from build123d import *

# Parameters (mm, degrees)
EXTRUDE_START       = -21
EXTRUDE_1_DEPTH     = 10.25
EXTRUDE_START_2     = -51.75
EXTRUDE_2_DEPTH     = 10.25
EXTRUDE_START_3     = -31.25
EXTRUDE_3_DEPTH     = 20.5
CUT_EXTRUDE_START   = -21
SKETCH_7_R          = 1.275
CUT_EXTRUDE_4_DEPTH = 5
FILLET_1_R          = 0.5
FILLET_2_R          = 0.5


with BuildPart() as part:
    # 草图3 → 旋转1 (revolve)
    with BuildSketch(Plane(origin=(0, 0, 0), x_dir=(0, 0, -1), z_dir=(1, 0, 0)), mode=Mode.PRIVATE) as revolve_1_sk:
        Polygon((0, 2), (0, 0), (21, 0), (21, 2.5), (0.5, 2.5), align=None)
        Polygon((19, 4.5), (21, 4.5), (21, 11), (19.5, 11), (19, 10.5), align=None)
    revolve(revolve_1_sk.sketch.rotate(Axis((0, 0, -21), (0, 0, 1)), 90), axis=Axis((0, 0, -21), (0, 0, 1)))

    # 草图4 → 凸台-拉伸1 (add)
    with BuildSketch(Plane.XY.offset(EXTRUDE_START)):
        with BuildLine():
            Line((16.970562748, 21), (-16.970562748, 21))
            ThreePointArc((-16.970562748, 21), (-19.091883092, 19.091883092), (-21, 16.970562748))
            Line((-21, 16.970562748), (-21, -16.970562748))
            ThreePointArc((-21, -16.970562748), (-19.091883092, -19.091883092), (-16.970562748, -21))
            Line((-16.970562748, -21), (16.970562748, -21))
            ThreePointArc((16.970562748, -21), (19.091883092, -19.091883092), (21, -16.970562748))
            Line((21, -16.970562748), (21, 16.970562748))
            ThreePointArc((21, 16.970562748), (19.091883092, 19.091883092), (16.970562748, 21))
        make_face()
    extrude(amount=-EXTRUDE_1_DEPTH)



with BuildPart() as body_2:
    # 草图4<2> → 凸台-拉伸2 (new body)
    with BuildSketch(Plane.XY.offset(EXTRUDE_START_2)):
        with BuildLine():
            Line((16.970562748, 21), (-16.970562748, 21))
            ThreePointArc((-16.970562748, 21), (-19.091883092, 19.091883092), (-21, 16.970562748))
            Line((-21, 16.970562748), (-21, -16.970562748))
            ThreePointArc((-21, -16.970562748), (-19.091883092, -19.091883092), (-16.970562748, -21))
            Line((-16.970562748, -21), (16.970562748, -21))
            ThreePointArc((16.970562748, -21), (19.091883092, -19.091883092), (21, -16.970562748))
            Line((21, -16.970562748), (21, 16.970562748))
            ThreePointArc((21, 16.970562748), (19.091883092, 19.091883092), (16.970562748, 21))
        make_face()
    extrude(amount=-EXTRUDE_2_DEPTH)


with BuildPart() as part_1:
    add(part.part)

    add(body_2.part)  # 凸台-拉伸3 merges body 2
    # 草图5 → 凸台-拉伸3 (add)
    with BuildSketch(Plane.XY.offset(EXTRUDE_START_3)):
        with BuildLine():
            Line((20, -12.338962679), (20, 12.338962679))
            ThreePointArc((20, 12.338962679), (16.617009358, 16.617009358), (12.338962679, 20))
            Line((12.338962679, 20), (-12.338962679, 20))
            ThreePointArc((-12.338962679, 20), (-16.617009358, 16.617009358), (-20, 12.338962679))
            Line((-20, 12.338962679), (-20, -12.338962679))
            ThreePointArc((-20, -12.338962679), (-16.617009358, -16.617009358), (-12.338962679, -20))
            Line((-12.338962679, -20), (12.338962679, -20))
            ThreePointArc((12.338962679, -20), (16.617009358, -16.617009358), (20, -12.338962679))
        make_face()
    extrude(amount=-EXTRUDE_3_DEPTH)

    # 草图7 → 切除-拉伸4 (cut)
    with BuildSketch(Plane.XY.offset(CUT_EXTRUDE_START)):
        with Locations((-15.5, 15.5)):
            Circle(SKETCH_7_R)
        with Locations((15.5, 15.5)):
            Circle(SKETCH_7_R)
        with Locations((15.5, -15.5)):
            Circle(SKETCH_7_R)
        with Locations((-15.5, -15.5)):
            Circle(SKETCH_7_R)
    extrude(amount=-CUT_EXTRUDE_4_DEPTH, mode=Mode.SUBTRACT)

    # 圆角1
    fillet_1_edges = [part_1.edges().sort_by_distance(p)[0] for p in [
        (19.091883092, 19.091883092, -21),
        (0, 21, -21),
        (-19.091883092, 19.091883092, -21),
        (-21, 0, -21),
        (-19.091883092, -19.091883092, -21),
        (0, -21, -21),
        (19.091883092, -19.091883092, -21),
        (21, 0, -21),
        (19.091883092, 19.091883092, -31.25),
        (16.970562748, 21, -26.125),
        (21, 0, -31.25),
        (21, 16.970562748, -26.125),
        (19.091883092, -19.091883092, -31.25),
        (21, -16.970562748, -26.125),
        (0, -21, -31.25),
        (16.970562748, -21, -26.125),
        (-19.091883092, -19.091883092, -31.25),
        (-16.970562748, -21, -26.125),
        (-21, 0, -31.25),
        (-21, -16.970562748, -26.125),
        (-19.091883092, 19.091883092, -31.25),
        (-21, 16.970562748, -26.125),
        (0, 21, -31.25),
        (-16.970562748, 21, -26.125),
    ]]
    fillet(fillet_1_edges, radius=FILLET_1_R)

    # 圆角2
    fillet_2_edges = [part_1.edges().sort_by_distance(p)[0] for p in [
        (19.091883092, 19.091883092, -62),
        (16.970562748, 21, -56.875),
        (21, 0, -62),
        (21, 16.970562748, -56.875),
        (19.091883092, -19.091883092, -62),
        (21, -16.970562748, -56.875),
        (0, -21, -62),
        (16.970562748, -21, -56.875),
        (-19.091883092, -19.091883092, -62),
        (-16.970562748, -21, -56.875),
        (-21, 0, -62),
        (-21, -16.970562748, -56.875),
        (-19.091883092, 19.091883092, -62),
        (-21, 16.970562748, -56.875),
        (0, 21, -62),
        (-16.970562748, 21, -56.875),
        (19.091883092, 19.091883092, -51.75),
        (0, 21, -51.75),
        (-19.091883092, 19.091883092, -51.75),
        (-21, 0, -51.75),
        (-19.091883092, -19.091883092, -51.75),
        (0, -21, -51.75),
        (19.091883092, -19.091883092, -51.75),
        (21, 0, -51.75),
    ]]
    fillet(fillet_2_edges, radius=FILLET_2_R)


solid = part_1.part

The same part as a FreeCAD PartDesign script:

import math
import FreeCAD as App
import Part
import Sketcher
from FreeCAD import Vector
Q = App.Units.Quantity


def edges_at(feature, points):
    """Names of the edges that pass closest to the given points."""
    edges = feature.Shape.Edges
    near = lambda p: min(range(len(edges)), key=lambda i: edges[i].distToShape(Part.Vertex(*p))[0])
    return sorted({f"Edge{near(p) + 1}" for p in points})

doc = App.newDocument("Part")
params = doc.addObject("Spreadsheet::Sheet", "Params")
for row, (alias, value) in enumerate([
    ("sketch1_width", "2 mm"),
    ("sketch1_width2", "6 mm"),
    ("sketch1_height", "21 mm"),
    ("sketch1_width3", "2.5 mm"),
    ("revolution_angle", "360 deg"),
    ("sketch2_radius", "27 mm"),
    ("pad1_length", "10.25 mm"),
    ("sketch3_radius", "27 mm"),
    ("pad2_length", "10.25 mm"),
    ("sketch4_radius", "23.5 mm"),
    ("pad3_length", "20.5 mm"),
    ("sketch5_diameter", "2.55 mm"),
    ("pocket1_length", "5 mm"),
    ("fillet_radius", "0.5 mm"),
    ("fillet2_radius", "0.5 mm"),
], start=1):
    params.set(f"A{row}", alias)
    params.set(f"B{row}", "=" + value)
    params.setAlias(f"B{row}", alias)

body = doc.addObject("PartDesign::Body", "Body")
body.AllowCompound = True

sketch1 = doc.addObject("Sketcher::SketchObject", "Sketch")
body.addObject(sketch1)
sketch1.AttachmentSupport = (doc.YZ_Plane, [""])
sketch1.MapMode = "FlatFace"
sketch1.addGeometry([
    Part.LineSegment(Vector(2, 0, 0), Vector(0, 0, 0)),
    Part.LineSegment(Vector(0, 0, 0), Vector(0, -21, 0)),
    Part.LineSegment(Vector(0, -21, 0), Vector(2.5, -21, 0)),
    Part.LineSegment(Vector(2.5, -21, 0), Vector(2.5, -0.5, 0)),
    Part.LineSegment(Vector(2.5, -0.5, 0), Vector(2, 0, 0)),
    Part.LineSegment(Vector(4.5, -19, 0), Vector(4.5, -21, 0)),
    Part.LineSegment(Vector(4.5, -21, 0), Vector(11, -21, 0)),
    Part.LineSegment(Vector(11, -21, 0), Vector(11, -19.5, 0)),
    Part.LineSegment(Vector(11, -19.5, 0), Vector(10.5, -19, 0)),
    Part.LineSegment(Vector(10.5, -19, 0), Vector(4.5, -19, 0)),
], False)
sketch1.addConstraint([
    Sketcher.Constraint("Coincident", 0, 2, 1, 1),
    Sketcher.Constraint("Coincident", 1, 2, 2, 1),
    Sketcher.Constraint("Coincident", 2, 2, 3, 1),
    Sketcher.Constraint("Coincident", 3, 2, 4, 1),
    Sketcher.Constraint("Coincident", 4, 2, 0, 1),
    Sketcher.Constraint("Coincident", 5, 2, 6, 1),
    Sketcher.Constraint("Coincident", 6, 2, 7, 1),
    Sketcher.Constraint("Coincident", 7, 2, 8, 1),
    Sketcher.Constraint("Coincident", 8, 2, 9, 1),
    Sketcher.Constraint("Coincident", 9, 2, 5, 1),
    Sketcher.Constraint("Horizontal", 0),
    Sketcher.Constraint("Vertical", 1),
    Sketcher.Constraint("Horizontal", 2),
    Sketcher.Constraint("Vertical", 3),
    Sketcher.Constraint("Vertical", 5),
    Sketcher.Constraint("Horizontal", 6),
    Sketcher.Constraint("Vertical", 7),
    Sketcher.Constraint("Horizontal", 9),
    Sketcher.Constraint("Coincident", 0, 2, -1, 1),
    Sketcher.Constraint("Parallel", 4, 8),
    Sketcher.Constraint("Horizontal", 2, 2, 5, 2),
    Sketcher.Constraint("Equal", 0, 5),
    Sketcher.Constraint("Equal", 4, 8),
    Sketcher.Constraint("DistanceX", 0, 2, 0, 1, 2.0),
    Sketcher.Constraint("DistanceX", 9, 2, 9, 1, 6.0),
    Sketcher.Constraint("DistanceY", 1, 2, 1, 1, 21.0),
    Sketcher.Constraint("Angle", 4, Q("135 deg")),
    Sketcher.Constraint("DistanceX", 2, 1, 2, 2, 2.5),
    Sketcher.Constraint("DistanceX", -1, 1, 6, 2, 11.0),
])
sketch1.setExpression("Constraints[23]", "Params.sketch1_width")
sketch1.setExpression("Constraints[24]", "Params.sketch1_width2")
sketch1.setExpression("Constraints[25]", "Params.sketch1_height")
sketch1.setExpression("Constraints[27]", "Params.sketch1_width3")
revolution = doc.addObject("PartDesign::Revolution", "Revolution")
body.addObject(revolution)
revolution.Profile = sketch1
revolution.ReferenceAxis = (sketch1, ["V_Axis"])
revolution.setExpression("Angle", "Params.revolution_angle")

sketch2 = doc.addObject("Sketcher::SketchObject", "Sketch001")
body.addObject(sketch2)
sketch2.AttachmentSupport = (doc.XY_Plane, [""])
sketch2.MapMode = "FlatFace"
sketch2.AttachmentOffset = App.Placement(Vector(0, 0, -21), App.Rotation())
sketch2.addGeometry([
    Part.LineSegment(Vector(17, 21, 0), Vector(-17, 21, 0)),
    Part.ArcOfCircle(Part.Circle(Vector(0, 0, 0), Vector(0, 0, 1), 27), math.radians(128.94), math.radians(141.06)),
    Part.LineSegment(Vector(-21, 17, 0), Vector(-21, -17, 0)),
    Part.ArcOfCircle(Part.Circle(Vector(0, 0, 0), Vector(0, 0, 1), 27), math.radians(-141.06), math.radians(-128.94)),
    Part.LineSegment(Vector(-17, -21, 0), Vector(17, -21, 0)),
    Part.ArcOfCircle(Part.Circle(Vector(0, 0, 0), Vector(0, 0, 1), 27), math.radians(-51.06), math.radians(-38.94)),
    Part.LineSegment(Vector(21, -17, 0), Vector(21, 17, 0)),
    Part.ArcOfCircle(Part.Circle(Vector(0, 0, 0), Vector(0, 0, 1), 27), math.radians(38.94), math.radians(51.06)),
], False)
sketch2.addConstraint([
    Sketcher.Constraint("Coincident", 0, 2, 1, 1),
    Sketcher.Constraint("Coincident", 1, 2, 2, 1),
    Sketcher.Constraint("Coincident", 2, 2, 3, 1),
    Sketcher.Constraint("Coincident", 3, 2, 4, 1),
    Sketcher.Constraint("Coincident", 4, 2, 5, 1),
    Sketcher.Constraint("Coincident", 5, 2, 6, 1),
    Sketcher.Constraint("Coincident", 6, 2, 7, 1),
    Sketcher.Constraint("Coincident", 7, 2, 0, 1),
    Sketcher.Constraint("Horizontal", 0),
    Sketcher.Constraint("Vertical", 2),
    Sketcher.Constraint("Horizontal", 4),
    Sketcher.Constraint("Vertical", 6),
    Sketcher.Constraint("Coincident", 1, 3, -1, 1),
    Sketcher.Constraint("Coincident", 3, 3, -1, 1),
    Sketcher.Constraint("Coincident", 5, 3, -1, 1),
    Sketcher.Constraint("Coincident", 7, 3, -1, 1),
    Sketcher.Constraint("Equal", 1, 3),
    Sketcher.Constraint("Equal", 3, 5),
    Sketcher.Constraint("Equal", 5, 7),
    Sketcher.Constraint("Horizontal", 2, 2, 5, 2),
    Sketcher.Constraint("Vertical", 0, 2, 3, 2),
    Sketcher.Constraint("Equal", 4, 2),
    Sketcher.Constraint("Radius", 1, 27.0),
    Sketcher.Constraint("DistanceY", -1, 1, 0, 2, 21.0),
])
sketch2.setExpression("Constraints[22]", "Params.sketch2_radius")
pad1 = doc.addObject("PartDesign::Pad", "Pad")
body.addObject(pad1)
pad1.Profile = sketch2
pad1.setExpression("Length", "Params.pad1_length")
pad1.Reversed = True
body2 = doc.addObject("PartDesign::Body", "Body001")

sketch3 = doc.addObject("Sketcher::SketchObject", "Sketch002")
body2.addObject(sketch3)
sketch3.AttachmentSupport = (doc.getObject("XY_Plane001"), [""])
sketch3.MapMode = "FlatFace"
sketch3.AttachmentOffset = App.Placement(Vector(0, 0, -51.75), App.Rotation())
sketch3.addGeometry([
    Part.LineSegment(Vector(17, 21, 0), Vector(-17, 21, 0)),
    Part.ArcOfCircle(Part.Circle(Vector(0, 0, 0), Vector(0, 0, 1), 27), math.radians(128.94), math.radians(141.06)),
    Part.LineSegment(Vector(-21, 17, 0), Vector(-21, -17, 0)),
    Part.ArcOfCircle(Part.Circle(Vector(0, 0, 0), Vector(0, 0, 1), 27), math.radians(-141.06), math.radians(-128.94)),
    Part.LineSegment(Vector(-17, -21, 0), Vector(17, -21, 0)),
    Part.ArcOfCircle(Part.Circle(Vector(0, 0, 0), Vector(0, 0, 1), 27), math.radians(-51.06), math.radians(-38.94)),
    Part.LineSegment(Vector(21, -17, 0), Vector(21, 17, 0)),
    Part.ArcOfCircle(Part.Circle(Vector(0, 0, 0), Vector(0, 0, 1), 27), math.radians(38.94), math.radians(51.06)),
], False)
sketch3.addConstraint([
    Sketcher.Constraint("Coincident", 0, 2, 1, 1),
    Sketcher.Constraint("Coincident", 1, 2, 2, 1),
    Sketcher.Constraint("Coincident", 2, 2, 3, 1),
    Sketcher.Constraint("Coincident", 3, 2, 4, 1),
    Sketcher.Constraint("Coincident", 4, 2, 5, 1),
    Sketcher.Constraint("Coincident", 5, 2, 6, 1),
    Sketcher.Constraint("Coincident", 6, 2, 7, 1),
    Sketcher.Constraint("Coincident", 7, 2, 0, 1),
    Sketcher.Constraint("Horizontal", 0),
    Sketcher.Constraint("Vertical", 2),
    Sketcher.Constraint("Horizontal", 4),
    Sketcher.Constraint("Vertical", 6),
    Sketcher.Constraint("Coincident", 1, 3, -1, 1),
    Sketcher.Constraint("Coincident", 3, 3, -1, 1),
    Sketcher.Constraint("Coincident", 5, 3, -1, 1),
    Sketcher.Constraint("Coincident", 7, 3, -1, 1),
    Sketcher.Constraint("Equal", 1, 3),
    Sketcher.Constraint("Equal", 3, 5),
    Sketcher.Constraint("Equal", 5, 7),
    Sketcher.Constraint("Horizontal", 2, 2, 5, 2),
    Sketcher.Constraint("Vertical", 0, 2, 3, 2),
    Sketcher.Constraint("Equal", 4, 2),
    Sketcher.Constraint("Radius", 1, 27.0),
    Sketcher.Constraint("DistanceY", -1, 1, 0, 2, 21.0),
])
sketch3.setExpression("Constraints[22]", "Params.sketch3_radius")
pad2 = doc.addObject("PartDesign::Pad", "Pad001")
body2.addObject(pad2)
pad2.Profile = sketch3
pad2.setExpression("Length", "Params.pad2_length")
pad2.Reversed = True
body.AllowCompound = True
doc.recompute()

boolean = doc.addObject("PartDesign::Boolean", "Boolean")
body.addObject(boolean)
boolean.Type = "Fuse"
boolean.addObjects([body2])

sketch4 = doc.addObject("Sketcher::SketchObject", "Sketch003")
body.addObject(sketch4)
sketch4.AttachmentSupport = (doc.XY_Plane, [""])
sketch4.MapMode = "FlatFace"
sketch4.AttachmentOffset = App.Placement(Vector(0, 0, -31.25), App.Rotation())
sketch4.addGeometry([
    Part.LineSegment(Vector(20, -12, 0), Vector(20, 12, 0)),
    Part.ArcOfCircle(Part.Circle(Vector(0, 0, 0), Vector(0, 0, 1), 23), math.radians(32), math.radians(58)),
    Part.LineSegment(Vector(12, 20, 0), Vector(-12, 20, 0)),
    Part.ArcOfCircle(Part.Circle(Vector(0, 0, 0), Vector(0, 0, 1), 23), math.radians(122), math.radians(148)),
    Part.LineSegment(Vector(-20, 12, 0), Vector(-20, -12, 0)),
    Part.ArcOfCircle(Part.Circle(Vector(0, 0, 0), Vector(0, 0, 1), 23), math.radians(-148), math.radians(-122)),
    Part.LineSegment(Vector(-12, -20, 0), Vector(12, -20, 0)),
    Part.ArcOfCircle(Part.Circle(Vector(0, 0, 0), Vector(0, 0, 1), 23), math.radians(-58), math.radians(-32)),
], False)
sketch4.addConstraint([
    Sketcher.Constraint("Coincident", 0, 2, 1, 1),
    Sketcher.Constraint("Coincident", 1, 2, 2, 1),
    Sketcher.Constraint("Coincident", 2, 2, 3, 1),
    Sketcher.Constraint("Coincident", 3, 2, 4, 1),
    Sketcher.Constraint("Coincident", 4, 2, 5, 1),
    Sketcher.Constraint("Coincident", 5, 2, 6, 1),
    Sketcher.Constraint("Coincident", 6, 2, 7, 1),
    Sketcher.Constraint("Coincident", 7, 2, 0, 1),
    Sketcher.Constraint("Vertical", 0),
    Sketcher.Constraint("Horizontal", 2),
    Sketcher.Constraint("Vertical", 4),
    Sketcher.Constraint("Horizontal", 6),
    Sketcher.Constraint("Coincident", 1, 3, -1, 1),
    Sketcher.Constraint("Coincident", 3, 3, -1, 1),
    Sketcher.Constraint("Coincident", 5, 3, -1, 1),
    Sketcher.Constraint("Coincident", 7, 3, -1, 1),
    Sketcher.Constraint("Equal", 1, 3),
    Sketcher.Constraint("Equal", 3, 5),
    Sketcher.Constraint("Equal", 5, 7),
    Sketcher.Constraint("Horizontal", 0, 2, 3, 2),
    Sketcher.Constraint("Vertical", 2, 2, 5, 2),
    Sketcher.Constraint("Equal", 6, 0),
    Sketcher.Constraint("Radius", 1, 23.5),
    Sketcher.Constraint("DistanceX", -1, 1, 0, 2, 20.0),
])
sketch4.setExpression("Constraints[22]", "Params.sketch4_radius")
pad3 = doc.addObject("PartDesign::Pad", "Pad002")
body.addObject(pad3)
pad3.Profile = sketch4
pad3.setExpression("Length", "Params.pad3_length")
pad3.Reversed = True

sketch5 = doc.addObject("Sketcher::SketchObject", "Sketch004")
body.addObject(sketch5)
sketch5.AttachmentSupport = (doc.XY_Plane, [""])
sketch5.MapMode = "FlatFace"
sketch5.AttachmentOffset = App.Placement(Vector(0, 0, -21), App.Rotation())
sketch5.addGeometry([
    Part.Circle(Vector(-15.5, 15.5, 0), Vector(0, 0, 1), 1.3),
    Part.Circle(Vector(15.5, 15.5, 0), Vector(0, 0, 1), 1.3),
    Part.Circle(Vector(15.5, -15.5, 0), Vector(0, 0, 1), 1.3),
    Part.Circle(Vector(-15.5, -15.5, 0), Vector(0, 0, 1), 1.3),
], False)
sketch5.addConstraint([
    Sketcher.Constraint("Equal", 0, 1),
    Sketcher.Constraint("Equal", 1, 2),
    Sketcher.Constraint("Equal", 2, 3),
    Sketcher.Constraint("Symmetric", 0, 3, 2, 3, -1, 1),
    Sketcher.Constraint("Symmetric", 1, 3, 3, 3, -1, 1),
    Sketcher.Constraint("Symmetric", 0, 3, 1, 3, -2),
    Sketcher.Constraint("Diameter", 0, 2.55),
    Sketcher.Constraint("DistanceX", 0, 3, 1, 3, 31.0),
    Sketcher.Constraint("DistanceY", 2, 3, 1, 3, 31.0),
])
sketch5.setExpression("Constraints[6]", "Params.sketch5_diameter")
pocket1 = doc.addObject("PartDesign::Pocket", "Pocket")
body.addObject(pocket1)
pocket1.Profile = sketch5
pocket1.setExpression("Length", "Params.pocket1_length")
doc.recompute()

fillet = doc.addObject("PartDesign::Fillet", "Fillet")
body.addObject(fillet)
fillet.Base = (pocket1, edges_at(pocket1, [
    (19.092, 19.092, -21),
    (0, 21, -21),
    (-19.092, 19.092, -21),
    (-21, 0, -21),
    (-19.092, -19.092, -21),
    (0, -21, -21),
    (19.092, -19.092, -21),
    (21, 0, -21),
    (19.092, 19.092, -31.25),
    (16.971, 21, -26.125),
    (21, 0, -31.25),
    (21, 16.971, -26.125),
    (19.092, -19.092, -31.25),
    (21, -16.971, -26.125),
    (0, -21, -31.25),
    (16.971, -21, -26.125),
    (-19.092, -19.092, -31.25),
    (-16.971, -21, -26.125),
    (-21, 0, -31.25),
    (-21, -16.971, -26.125),
    (-19.092, 19.092, -31.25),
    (-21, 16.971, -26.125),
    (0, 21, -31.25),
    (-16.971, 21, -26.125),
]))
fillet.setExpression("Radius", "Params.fillet_radius")
doc.recompute()

fillet2 = doc.addObject("PartDesign::Fillet", "Fillet001")
body.addObject(fillet2)
fillet2.Base = (fillet, edges_at(fillet, [
    (19.092, 19.092, -62),
    (16.971, 21, -56.875),
    (21, 0, -62),
    (21, 16.971, -56.875),
    (19.092, -19.092, -62),
    (21, -16.971, -56.875),
    (0, -21, -62),
    (16.971, -21, -56.875),
    (-19.092, -19.092, -62),
    (-16.971, -21, -56.875),
    (-21, 0, -62),
    (-21, -16.971, -56.875),
    (-19.092, 19.092, -62),
    (-21, 16.971, -56.875),
    (0, 21, -62),
    (-16.971, 21, -56.875),
    (19.092, 19.092, -51.75),
    (0, 21, -51.75),
    (-19.092, 19.092, -51.75),
    (-21, 0, -51.75),
    (-19.092, -19.092, -51.75),
    (0, -21, -51.75),
    (19.092, -19.092, -51.75),
    (21, 0, -51.75),
]))
fillet2.setExpression("Radius", "Params.fillet2_radius")

doc.recompute()
